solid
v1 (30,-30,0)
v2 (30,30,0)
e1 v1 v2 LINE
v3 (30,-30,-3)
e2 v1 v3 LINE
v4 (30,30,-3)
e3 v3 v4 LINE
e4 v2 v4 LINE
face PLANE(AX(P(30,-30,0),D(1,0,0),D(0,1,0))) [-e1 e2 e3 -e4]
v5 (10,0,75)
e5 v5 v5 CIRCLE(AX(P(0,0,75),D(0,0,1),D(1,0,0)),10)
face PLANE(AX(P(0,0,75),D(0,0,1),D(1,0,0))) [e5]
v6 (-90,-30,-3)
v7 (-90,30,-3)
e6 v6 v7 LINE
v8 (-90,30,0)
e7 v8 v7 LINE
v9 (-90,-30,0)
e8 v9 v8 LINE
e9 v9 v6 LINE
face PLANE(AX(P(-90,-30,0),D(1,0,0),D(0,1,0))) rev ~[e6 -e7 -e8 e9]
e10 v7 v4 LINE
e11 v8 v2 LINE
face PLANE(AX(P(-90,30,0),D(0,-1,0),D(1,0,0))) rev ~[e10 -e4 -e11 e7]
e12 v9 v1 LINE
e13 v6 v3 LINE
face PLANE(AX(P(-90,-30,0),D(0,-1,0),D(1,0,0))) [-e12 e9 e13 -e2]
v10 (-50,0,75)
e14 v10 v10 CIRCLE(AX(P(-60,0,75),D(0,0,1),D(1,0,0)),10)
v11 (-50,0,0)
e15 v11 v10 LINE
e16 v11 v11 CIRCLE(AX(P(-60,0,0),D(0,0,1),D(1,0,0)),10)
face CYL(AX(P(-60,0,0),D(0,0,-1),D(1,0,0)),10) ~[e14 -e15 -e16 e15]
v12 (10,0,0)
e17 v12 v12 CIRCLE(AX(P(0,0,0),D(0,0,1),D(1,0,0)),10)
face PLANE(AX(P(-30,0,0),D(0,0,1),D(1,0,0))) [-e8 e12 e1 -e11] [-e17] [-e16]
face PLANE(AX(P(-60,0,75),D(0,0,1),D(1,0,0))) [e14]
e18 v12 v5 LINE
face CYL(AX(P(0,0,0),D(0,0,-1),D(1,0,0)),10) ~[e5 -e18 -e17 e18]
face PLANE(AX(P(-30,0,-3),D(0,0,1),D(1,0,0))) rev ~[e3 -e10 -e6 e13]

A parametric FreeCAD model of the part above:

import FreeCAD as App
import Part
import Sketcher
Q = App.Units.Quantity


def add_polygon(sketch, points):
    """Adds a closed chain of lines whose ends are joined by coincident constraints."""
    first, n = sketch.GeometryCount, len(points)
    for a, b in zip(points, points[1:] + points[:1]):
        sketch.addGeometry(Part.LineSegment(App.Vector(*a, 0), App.Vector(*b, 0)), False)
    for i in range(n):
        sketch.addConstraint(Sketcher.Constraint("Coincident", first + i, 2, first + (i + 1) % n, 1))

doc = App.newDocument("Part")
body = doc.addObject("PartDesign::Body", "Body")

# Sketch on XY plane
sketch1 = body.newObject("Sketcher::SketchObject", "Sketch")
sketch1.AttachmentSupport = (doc.getObject("XY_Plane"), [""])
sketch1.MapMode = "FlatFace"
add_polygon(sketch1, [(-90, 30), (-90, -30), (30, -30), (30, 30)])  # lines 0-3
sketch1.addConstraint(Sketcher.Constraint("Vertical", 0))
sketch1.addConstraint(Sketcher.Constraint("Horizontal", 1))
sketch1.addConstraint(Sketcher.Constraint("Vertical", 2))
sketch1.addConstraint(Sketcher.Constraint("Horizontal", 3))
sketch1.addConstraint(Sketcher.Constraint("DistanceX", 1, 1, 1, 2, Q("120 mm")))
sketch1.addConstraint(Sketcher.Constraint("DistanceY", 0, 2, 0, 1, Q("60 mm")))
sketch1.addConstraint(Sketcher.Constraint("DistanceX", 0, 2, -1, 1, Q("90 mm")))
sketch1.addConstraint(Sketcher.Constraint("DistanceY", 0, 2, -1, 1, Q("30 mm")))
pad1 = body.newObject("PartDesign::Pad", "Pad")
pad1.Profile = sketch1
pad1.Length = 3
pad1.Reversed = True

# Sketch on XY plane
sketch2 = body.newObject("Sketcher::SketchObject", "Sketch001")
sketch2.AttachmentSupport = (doc.getObject("XY_Plane"), [""])
sketch2.MapMode = "FlatFace"
sketch2.addGeometry(Part.Circle(App.Vector(-60, 0, 0), App.Vector(0, 0, 1), 10), False)
sketch2.addGeometry(Part.Circle(App.Vector(0, 0, 0), App.Vector(0, 0, 1), 10), False)
sketch2.addConstraint(Sketcher.Constraint("Coincident", 1, 3, -1, 1))
sketch2.addConstraint(Sketcher.Constraint("Equal", 0, 1))
sketch2.addConstraint(Sketcher.Constraint("PointOnObject", 0, 3, -1))
sketch2.addConstraint(Sketcher.Constraint("Diameter", 0, Q("20 mm")))
sketch2.addConstraint(Sketcher.Constraint("DistanceX", 0, 3, -1, 1, Q("60 mm")))
pad2 = body.newObject("PartDesign::Pad", "Pad001")
pad2.Profile = sketch2
pad2.Length = 75

doc.recompute()
